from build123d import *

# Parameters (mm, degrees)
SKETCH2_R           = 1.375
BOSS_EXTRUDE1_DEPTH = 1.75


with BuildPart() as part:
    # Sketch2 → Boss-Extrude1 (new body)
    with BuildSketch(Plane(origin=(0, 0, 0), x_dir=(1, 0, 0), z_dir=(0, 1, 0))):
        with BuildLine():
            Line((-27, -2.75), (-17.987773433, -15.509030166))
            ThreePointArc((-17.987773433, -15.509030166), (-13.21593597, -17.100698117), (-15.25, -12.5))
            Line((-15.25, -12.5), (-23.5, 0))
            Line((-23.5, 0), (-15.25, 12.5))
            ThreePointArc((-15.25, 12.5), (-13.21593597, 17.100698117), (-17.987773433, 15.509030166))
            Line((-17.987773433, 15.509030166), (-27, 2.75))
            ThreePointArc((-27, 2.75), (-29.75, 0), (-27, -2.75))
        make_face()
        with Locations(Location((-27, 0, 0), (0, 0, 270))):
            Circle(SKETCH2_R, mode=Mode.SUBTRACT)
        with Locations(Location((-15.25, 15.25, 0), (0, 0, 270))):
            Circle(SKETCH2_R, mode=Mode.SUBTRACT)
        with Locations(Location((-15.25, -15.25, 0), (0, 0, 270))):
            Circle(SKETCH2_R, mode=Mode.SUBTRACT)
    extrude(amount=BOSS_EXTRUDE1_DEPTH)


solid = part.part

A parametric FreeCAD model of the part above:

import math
import FreeCAD as App
import Part
import Sketcher
from FreeCAD import Vector
Q = App.Units.Quantity

doc = App.newDocument("Part")
params = doc.addObject("Spreadsheet::Sheet", "Params")
for row, (alias, value) in enumerate([
    ("sketch1_diameter", "2.75 mm"),
    ("sketch1_radius", "2.75 mm"),
    ("pad1_length", "1.75 mm"),
], start=1):
    params.set(f"A{row}", alias)
    params.set(f"B{row}", "=" + value)
    params.setAlias(f"B{row}", alias)

body = doc.addObject("PartDesign::Body", "Body")

sketch1 = body.newObject("Sketcher::SketchObject", "Sketch")
sketch1.AttachmentSupport = (doc.getObject("XZ_Plane"), [""])
sketch1.MapMode = "FlatFace"
sketch1.addGeometry([
    Part.LineSegment(Vector(-27, 2.8, 0), Vector(-18, 15.5, 0)),
    Part.ArcOfCircle(Part.Circle(Vector(-15.2, 15.2, 0), Vector(0, 0, 1), 2.8), math.radians(-90), math.radians(175)),
    Part.LineSegment(Vector(-15.2, 12.5, 0), Vector(-23.5, 0, 0)),
    Part.LineSegment(Vector(-23.5, 0, 0), Vector(-15.2, -12.5, 0)),
    Part.ArcOfCircle(Part.Circle(Vector(-15.2, -15.2, 0), Vector(0, 0, 1), 2.8), math.radians(-175), math.radians(90)),
    Part.LineSegment(Vector(-18, -15.5, 0), Vector(-27, -2.8, 0)),
    Part.ArcOfCircle(Part.Circle(Vector(-27, 0, 0), Vector(0, 0, 1), 2.8), math.radians(90), math.radians(270)),
    Part.Circle(Vector(-15.2, 15.2, 0), Vector(0, 0, 1), 1.4),
    Part.Circle(Vector(-27, 0, 0), Vector(0, 0, 1), 1.4),
    Part.Circle(Vector(-15.2, -15.2, 0), Vector(0, 0, 1), 1.4),
], False)
sketch1.addConstraint([
    Sketcher.Constraint("Coincident", 0, 2, 1, 2),
    Sketcher.Constraint("Coincident", 1, 1, 2, 1),
    Sketcher.Constraint("Coincident", 2, 2, 3, 1),
    Sketcher.Constraint("Coincident", 3, 2, 4, 2),
    Sketcher.Constraint("Coincident", 4, 1, 5, 1),
    Sketcher.Constraint("Coincident", 5, 2, 6, 2),
    Sketcher.Constraint("Coincident", 6, 1, 0, 1),
    Sketcher.Constraint("Coincident", 7, 3, 1, 3),
    Sketcher.Constraint("Coincident", 8, 3, 6, 3),
    Sketcher.Constraint("Coincident", 9, 3, 4, 3),
    Sketcher.Constraint("Equal", 1, 4),
    Sketcher.Constraint("Equal", 4, 6),
    Sketcher.Constraint("Equal", 7, 8),
    Sketcher.Constraint("Equal", 8, 9),
    Sketcher.Constraint("Symmetric", 1, 3, 4, 3, -1),
    Sketcher.Constraint("Symmetric", 5, 2, 6, 1, -1),
    Sketcher.Constraint("PointOnObject", 2, 2, -1),
    Sketcher.Constraint("Vertical", 9, 3, 1, 1),
    Sketcher.Constraint("Vertical", 1, 1, 3, 2),
    Sketcher.Constraint("Vertical", 0, 2, 4, 1),
    Sketcher.Constraint("Vertical", 8, 3, 5, 2),
    Sketcher.Constraint("Diameter", 7, Q("2.75 mm")),
    Sketcher.Constraint("Radius", 1, Q("2.75 mm")),
    Sketcher.Constraint("DistanceX", 6, 3, -1, 1, Q("27 mm")),
    Sketcher.Constraint("DistanceY", -1, 1, 1, 1, Q("12.5 mm")),
    Sketcher.Constraint("DistanceX", 2, 2, -1, 1, Q("23.5 mm")),
    Sketcher.Constraint("DistanceX", 1, 3, -1, 1, Q("15.25 mm")),
    Sketcher.Constraint("DistanceY", -1, 1, 0, 2, Q("15.50903 mm")),
])
sketch1.setExpression("Constraints[21]", "Params.sketch1_diameter")
sketch1.setExpression("Constraints[22]", "Params.sketch1_radius")
pad1 = body.newObject("PartDesign::Pad", "Pad")
pad1.Profile = sketch1
pad1.setExpression("Length", "Params.pad1_length")
pad1.Reversed = True

doc.recompute()
